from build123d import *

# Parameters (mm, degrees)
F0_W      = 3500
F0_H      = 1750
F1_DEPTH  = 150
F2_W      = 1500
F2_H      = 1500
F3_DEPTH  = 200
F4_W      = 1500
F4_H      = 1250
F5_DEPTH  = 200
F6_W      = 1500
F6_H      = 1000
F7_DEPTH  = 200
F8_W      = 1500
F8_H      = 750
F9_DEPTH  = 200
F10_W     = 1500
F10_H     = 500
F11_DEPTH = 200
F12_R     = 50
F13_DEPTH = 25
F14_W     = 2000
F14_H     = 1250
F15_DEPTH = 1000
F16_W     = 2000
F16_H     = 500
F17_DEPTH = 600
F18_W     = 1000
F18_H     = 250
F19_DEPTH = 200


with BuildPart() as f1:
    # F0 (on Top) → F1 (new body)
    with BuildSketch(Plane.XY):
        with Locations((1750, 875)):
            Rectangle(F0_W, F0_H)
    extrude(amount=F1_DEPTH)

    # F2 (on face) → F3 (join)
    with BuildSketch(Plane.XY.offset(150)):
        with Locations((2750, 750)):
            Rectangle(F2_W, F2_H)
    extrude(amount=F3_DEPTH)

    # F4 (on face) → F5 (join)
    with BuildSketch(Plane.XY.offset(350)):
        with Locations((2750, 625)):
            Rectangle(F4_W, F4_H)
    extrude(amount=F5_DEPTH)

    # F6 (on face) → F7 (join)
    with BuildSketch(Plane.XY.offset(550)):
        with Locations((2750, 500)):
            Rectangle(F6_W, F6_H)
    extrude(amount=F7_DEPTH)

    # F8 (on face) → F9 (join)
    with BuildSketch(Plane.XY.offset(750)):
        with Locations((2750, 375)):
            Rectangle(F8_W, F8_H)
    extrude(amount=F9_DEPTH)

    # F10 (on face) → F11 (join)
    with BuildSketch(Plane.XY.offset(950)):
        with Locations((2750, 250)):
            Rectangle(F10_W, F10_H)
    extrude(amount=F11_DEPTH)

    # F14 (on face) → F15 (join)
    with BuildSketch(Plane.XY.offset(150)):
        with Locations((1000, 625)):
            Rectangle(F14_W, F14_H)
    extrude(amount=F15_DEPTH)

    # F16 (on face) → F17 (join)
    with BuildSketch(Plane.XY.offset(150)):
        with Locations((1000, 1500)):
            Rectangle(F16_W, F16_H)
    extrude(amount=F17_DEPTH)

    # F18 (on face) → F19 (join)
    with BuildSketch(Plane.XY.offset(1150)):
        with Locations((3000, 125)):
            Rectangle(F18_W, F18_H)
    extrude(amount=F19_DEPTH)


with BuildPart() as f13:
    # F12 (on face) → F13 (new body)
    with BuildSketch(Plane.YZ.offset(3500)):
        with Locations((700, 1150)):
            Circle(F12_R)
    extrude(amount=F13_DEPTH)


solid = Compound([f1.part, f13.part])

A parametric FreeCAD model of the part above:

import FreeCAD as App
import Part
import Sketcher
from FreeCAD import Vector


def add_polygon(sketch, points):
    """Adds a closed chain of lines whose ends are joined by coincident constraints."""
    first, n = sketch.GeometryCount, len(points)
    for a, b in zip(points, points[1:] + points[:1]):
        sketch.addGeometry(Part.LineSegment(App.Vector(*a, 0), App.Vector(*b, 0)), False)
    for i in range(n):
        sketch.addConstraint(Sketcher.Constraint("Coincident", first + i, 2, first + (i + 1) % n, 1))

doc = App.newDocument("Part")
body = doc.addObject("PartDesign::Body", "Body")

sketch1 = doc.addObject("Sketcher::SketchObject", "Sketch")
body.addObject(sketch1)
sketch1.AttachmentSupport = (doc.XY_Plane, [""])
sketch1.MapMode = "FlatFace"
add_polygon(sketch1, [(0, 1750), (0, 0), (3500, 0), (3500, 1750)])
sketch1.addConstraint([
    Sketcher.Constraint("Vertical", 0),
    Sketcher.Constraint("Horizontal", 1),
    Sketcher.Constraint("Vertical", 2),
    Sketcher.Constraint("Horizontal", 3),
    Sketcher.Constraint("Coincident", 0, 2, -1, 1),
    Sketcher.Constraint("DistanceX", 1, 1, 1, 2, 3500.0),
    Sketcher.Constraint("DistanceY", 0, 2, 0, 1, 1750.0),
])
pad1 = doc.addObject("PartDesign::Pad", "Pad")
body.addObject(pad1)
pad1.Profile = sketch1
pad1.Length = 150

sketch2 = doc.addObject("Sketcher::SketchObject", "Sketch001")
body.addObject(sketch2)
sketch2.AttachmentSupport = (doc.XY_Plane, [""])
sketch2.MapMode = "FlatFace"
sketch2.AttachmentOffset = App.Placement(Vector(0, 0, 150), App.Rotation())
add_polygon(sketch2, [(2000, 1500), (2000, 0), (3500, 0), (3500, 1500)])
sketch2.addConstraint([
    Sketcher.Constraint("Vertical", 0),
    Sketcher.Constraint("Horizontal", 1),
    Sketcher.Constraint("Vertical", 2),
    Sketcher.Constraint("Horizontal", 3),
    Sketcher.Constraint("PointOnObject", 0, 2, -1),
    Sketcher.Constraint("Equal", 3, 0),
    Sketcher.Constraint("DistanceX", 1, 1, 1, 2, 1500.0),
    Sketcher.Constraint("DistanceX", -1, 1, 0, 2, 2000.0),
])
pad2 = doc.addObject("PartDesign::Pad", "Pad001")
body.addObject(pad2)
pad2.Profile = sketch2
pad2.Length = 200

sketch3 = doc.addObject("Sketcher::SketchObject", "Sketch002")
body.addObject(sketch3)
sketch3.AttachmentSupport = (doc.XY_Plane, [""])
sketch3.MapMode = "FlatFace"
sketch3.AttachmentOffset = App.Placement(Vector(0, 0, 350), App.Rotation())
add_polygon(sketch3, [(2000, 1250), (2000, 0), (3500, 0), (3500, 1250)])
sketch3.addConstraint([
    Sketcher.Constraint("Vertical", 0),
    Sketcher.Constraint("Horizontal", 1),
    Sketcher.Constraint("Vertical", 2),
    Sketcher.Constraint("Horizontal", 3),
    Sketcher.Constraint("PointOnObject", 0, 2, -1),
    Sketcher.Constraint("DistanceX", 1, 1, 1, 2, 1500.0),
    Sketcher.Constraint("DistanceY", 0, 2, 0, 1, 1250.0),
    Sketcher.Constraint("DistanceX", -1, 1, 0, 2, 2000.0),
])
pad3 = doc.addObject("PartDesign::Pad", "Pad002")
body.addObject(pad3)
pad3.Profile = sketch3
pad3.Length = 200

sketch4 = doc.addObject("Sketcher::SketchObject", "Sketch003")
body.addObject(sketch4)
sketch4.AttachmentSupport = (doc.XY_Plane, [""])
sketch4.MapMode = "FlatFace"
sketch4.AttachmentOffset = App.Placement(Vector(0, 0, 550), App.Rotation())
add_polygon(sketch4, [(2000, 1000), (2000, 0), (3500, 0), (3500, 1000)])
sketch4.addConstraint([
    Sketcher.Constraint("Vertical", 0),
    Sketcher.Constraint("Horizontal", 1),
    Sketcher.Constraint("Vertical", 2),
    Sketcher.Constraint("Horizontal", 3),
    Sketcher.Constraint("PointOnObject", 0, 2, -1),
    Sketcher.Constraint("DistanceX", 1, 1, 1, 2, 1500.0),
    Sketcher.Constraint("DistanceY", 0, 2, 0, 1, 1000.0),
    Sketcher.Constraint("DistanceX", -1, 1, 0, 2, 2000.0),
])
pad4 = doc.addObject("PartDesign::Pad", "Pad003")
body.addObject(pad4)
pad4.Profile = sketch4
pad4.Length = 200

sketch5 = doc.addObject("Sketcher::SketchObject", "Sketch004")
body.addObject(sketch5)
sketch5.AttachmentSupport = (doc.XY_Plane, [""])
sketch5.MapMode = "FlatFace"
sketch5.AttachmentOffset = App.Placement(Vector(0, 0, 750), App.Rotation())
add_polygon(sketch5, [(2000, 750), (2000, 0), (3500, 0), (3500, 750)])
sketch5.addConstraint([
    Sketcher.Constraint("Vertical", 0),
    Sketcher.Constraint("Horizontal", 1),
    Sketcher.Constraint("Vertical", 2),
    Sketcher.Constraint("Horizontal", 3),
    Sketcher.Constraint("PointOnObject", 0, 2, -1),
    Sketcher.Constraint("DistanceX", 1, 1, 1, 2, 1500.0),
    Sketcher.Constraint("DistanceY", 0, 2, 0, 1, 750.0),
    Sketcher.Constraint("DistanceX", -1, 1, 0, 2, 2000.0),
])
pad5 = doc.addObject("PartDesign::Pad", "Pad004")
body.addObject(pad5)
pad5.Profile = sketch5
pad5.Length = 200

sketch6 = doc.addObject("Sketcher::SketchObject", "Sketch005")
body.addObject(sketch6)
sketch6.AttachmentSupport = (doc.XY_Plane, [""])
sketch6.MapMode = "FlatFace"
sketch6.AttachmentOffset = App.Placement(Vector(0, 0, 950), App.Rotation())
add_polygon(sketch6, [(2000, 500), (2000, 0), (3500, 0), (3500, 500)])
sketch6.addConstraint([
    Sketcher.Constraint("Vertical", 0),
    Sketcher.Constraint("Horizontal", 1),
    Sketcher.Constraint("Vertical", 2),
    Sketcher.Constraint("Horizontal", 3),
    Sketcher.Constraint("PointOnObject", 0, 2, -1),
    Sketcher.Constraint("DistanceX", 1, 1, 1, 2, 1500.0),
    Sketcher.Constraint("DistanceY", 0, 2, 0, 1, 500.0),
    Sketcher.Constraint("DistanceX", -1, 1, 0, 2, 2000.0),
])
pad6 = doc.addObject("PartDesign::Pad", "Pad005")
body.addObject(pad6)
pad6.Profile = sketch6
pad6.Length = 200

sketch7 = doc.addObject("Sketcher::SketchObject", "Sketch006")
body.addObject(sketch7)
sketch7.AttachmentSupport = (doc.XY_Plane, [""])
sketch7.MapMode = "FlatFace"
sketch7.AttachmentOffset = App.Placement(Vector(0, 0, 150), App.Rotation())
add_polygon(sketch7, [(0, 1250), (0, 0), (2000, 0), (2000, 1250)])
sketch7.addConstraint([
    Sketcher.Constraint("Vertical", 0),
    Sketcher.Constraint("Horizontal", 1),
    Sketcher.Constraint("Vertical", 2),
    Sketcher.Constraint("Horizontal", 3),
    Sketcher.Constraint("Coincident", 0, 2, -1, 1),
    Sketcher.Constraint("DistanceX", 1, 1, 1, 2, 2000.0),
    Sketcher.Constraint("DistanceY", 0, 2, 0, 1, 1250.0),
])
pad7 = doc.addObject("PartDesign::Pad", "Pad006")
body.addObject(pad7)
pad7.Profile = sketch7
pad7.Length = 1000

sketch8 = doc.addObject("Sketcher::SketchObject", "Sketch007")
body.addObject(sketch8)
sketch8.AttachmentSupport = (doc.XY_Plane, [""])
sketch8.MapMode = "FlatFace"
sketch8.AttachmentOffset = App.Placement(Vector(0, 0, 150), App.Rotation())
add_polygon(sketch8, [(0, 1750), (0, 1250), (2000, 1250), (2000, 1750)])
sketch8.addConstraint([
    Sketcher.Constraint("Vertical", 0),
    Sketcher.Constraint("Horizontal", 1),
    Sketcher.Constraint("Vertical", 2),
    Sketcher.Constraint("Horizontal", 3),
    Sketcher.Constraint("PointOnObject", 0, 2, -2),
    Sketcher.Constraint("DistanceX", 1, 1, 1, 2, 2000.0),
    Sketcher.Constraint("DistanceY", 0, 2, 0, 1, 500.0),
    Sketcher.Constraint("DistanceY", -1, 1, 0, 2, 1250.0),
])
pad8 = doc.addObject("PartDesign::Pad", "Pad007")
body.addObject(pad8)
pad8.Profile = sketch8
pad8.Length = 600

sketch9 = doc.addObject("Sketcher::SketchObject", "Sketch008")
body.addObject(sketch9)
sketch9.AttachmentSupport = (doc.XY_Plane, [""])
sketch9.MapMode = "FlatFace"
sketch9.AttachmentOffset = App.Placement(Vector(0, 0, 1150), App.Rotation())
add_polygon(sketch9, [(2500, 250), (2500, 0), (3500, 0), (3500, 250)])
sketch9.addConstraint([
    Sketcher.Constraint("Vertical", 0),
    Sketcher.Constraint("Horizontal", 1),
    Sketcher.Constraint("Vertical", 2),
    Sketcher.Constraint("Horizontal", 3),
    Sketcher.Constraint("PointOnObject", 0, 2, -1),
    Sketcher.Constraint("DistanceX", 1, 1, 1, 2, 1000.0),
    Sketcher.Constraint("DistanceY", 0, 2, 0, 1, 250.0),
    Sketcher.Constraint("DistanceX", -1, 1, 0, 2, 2500.0),
])
pad9 = doc.addObject("PartDesign::Pad", "Pad008")
body.addObject(pad9)
pad9.Profile = sketch9
pad9.Length = 200
body2 = doc.addObject("PartDesign::Body", "Body001")

sketch10 = doc.addObject("Sketcher::SketchObject", "Sketch009")
body2.addObject(sketch10)
sketch10.AttachmentSupport = (doc.getObject("YZ_Plane001"), [""])
sketch10.MapMode = "FlatFace"
sketch10.AttachmentOffset = App.Placement(Vector(0, 0, 3500), App.Rotation())
sketch10.addGeometry(Part.Circle(Vector(700, 1150, 0), Vector(0, 0, 1), 50), False)
sketch10.addConstraint([
    Sketcher.Constraint("Diameter", 0, 100.0),
    Sketcher.Constraint("DistanceX", -1, 1, 0, 3, 700.0),
    Sketcher.Constraint("DistanceY", -1, 1, 0, 3, 1150.0),
])
pad10 = doc.addObject("PartDesign::Pad", "Pad009")
body2.addObject(pad10)
pad10.Profile = sketch10
pad10.Length = 25

doc.recompute()
